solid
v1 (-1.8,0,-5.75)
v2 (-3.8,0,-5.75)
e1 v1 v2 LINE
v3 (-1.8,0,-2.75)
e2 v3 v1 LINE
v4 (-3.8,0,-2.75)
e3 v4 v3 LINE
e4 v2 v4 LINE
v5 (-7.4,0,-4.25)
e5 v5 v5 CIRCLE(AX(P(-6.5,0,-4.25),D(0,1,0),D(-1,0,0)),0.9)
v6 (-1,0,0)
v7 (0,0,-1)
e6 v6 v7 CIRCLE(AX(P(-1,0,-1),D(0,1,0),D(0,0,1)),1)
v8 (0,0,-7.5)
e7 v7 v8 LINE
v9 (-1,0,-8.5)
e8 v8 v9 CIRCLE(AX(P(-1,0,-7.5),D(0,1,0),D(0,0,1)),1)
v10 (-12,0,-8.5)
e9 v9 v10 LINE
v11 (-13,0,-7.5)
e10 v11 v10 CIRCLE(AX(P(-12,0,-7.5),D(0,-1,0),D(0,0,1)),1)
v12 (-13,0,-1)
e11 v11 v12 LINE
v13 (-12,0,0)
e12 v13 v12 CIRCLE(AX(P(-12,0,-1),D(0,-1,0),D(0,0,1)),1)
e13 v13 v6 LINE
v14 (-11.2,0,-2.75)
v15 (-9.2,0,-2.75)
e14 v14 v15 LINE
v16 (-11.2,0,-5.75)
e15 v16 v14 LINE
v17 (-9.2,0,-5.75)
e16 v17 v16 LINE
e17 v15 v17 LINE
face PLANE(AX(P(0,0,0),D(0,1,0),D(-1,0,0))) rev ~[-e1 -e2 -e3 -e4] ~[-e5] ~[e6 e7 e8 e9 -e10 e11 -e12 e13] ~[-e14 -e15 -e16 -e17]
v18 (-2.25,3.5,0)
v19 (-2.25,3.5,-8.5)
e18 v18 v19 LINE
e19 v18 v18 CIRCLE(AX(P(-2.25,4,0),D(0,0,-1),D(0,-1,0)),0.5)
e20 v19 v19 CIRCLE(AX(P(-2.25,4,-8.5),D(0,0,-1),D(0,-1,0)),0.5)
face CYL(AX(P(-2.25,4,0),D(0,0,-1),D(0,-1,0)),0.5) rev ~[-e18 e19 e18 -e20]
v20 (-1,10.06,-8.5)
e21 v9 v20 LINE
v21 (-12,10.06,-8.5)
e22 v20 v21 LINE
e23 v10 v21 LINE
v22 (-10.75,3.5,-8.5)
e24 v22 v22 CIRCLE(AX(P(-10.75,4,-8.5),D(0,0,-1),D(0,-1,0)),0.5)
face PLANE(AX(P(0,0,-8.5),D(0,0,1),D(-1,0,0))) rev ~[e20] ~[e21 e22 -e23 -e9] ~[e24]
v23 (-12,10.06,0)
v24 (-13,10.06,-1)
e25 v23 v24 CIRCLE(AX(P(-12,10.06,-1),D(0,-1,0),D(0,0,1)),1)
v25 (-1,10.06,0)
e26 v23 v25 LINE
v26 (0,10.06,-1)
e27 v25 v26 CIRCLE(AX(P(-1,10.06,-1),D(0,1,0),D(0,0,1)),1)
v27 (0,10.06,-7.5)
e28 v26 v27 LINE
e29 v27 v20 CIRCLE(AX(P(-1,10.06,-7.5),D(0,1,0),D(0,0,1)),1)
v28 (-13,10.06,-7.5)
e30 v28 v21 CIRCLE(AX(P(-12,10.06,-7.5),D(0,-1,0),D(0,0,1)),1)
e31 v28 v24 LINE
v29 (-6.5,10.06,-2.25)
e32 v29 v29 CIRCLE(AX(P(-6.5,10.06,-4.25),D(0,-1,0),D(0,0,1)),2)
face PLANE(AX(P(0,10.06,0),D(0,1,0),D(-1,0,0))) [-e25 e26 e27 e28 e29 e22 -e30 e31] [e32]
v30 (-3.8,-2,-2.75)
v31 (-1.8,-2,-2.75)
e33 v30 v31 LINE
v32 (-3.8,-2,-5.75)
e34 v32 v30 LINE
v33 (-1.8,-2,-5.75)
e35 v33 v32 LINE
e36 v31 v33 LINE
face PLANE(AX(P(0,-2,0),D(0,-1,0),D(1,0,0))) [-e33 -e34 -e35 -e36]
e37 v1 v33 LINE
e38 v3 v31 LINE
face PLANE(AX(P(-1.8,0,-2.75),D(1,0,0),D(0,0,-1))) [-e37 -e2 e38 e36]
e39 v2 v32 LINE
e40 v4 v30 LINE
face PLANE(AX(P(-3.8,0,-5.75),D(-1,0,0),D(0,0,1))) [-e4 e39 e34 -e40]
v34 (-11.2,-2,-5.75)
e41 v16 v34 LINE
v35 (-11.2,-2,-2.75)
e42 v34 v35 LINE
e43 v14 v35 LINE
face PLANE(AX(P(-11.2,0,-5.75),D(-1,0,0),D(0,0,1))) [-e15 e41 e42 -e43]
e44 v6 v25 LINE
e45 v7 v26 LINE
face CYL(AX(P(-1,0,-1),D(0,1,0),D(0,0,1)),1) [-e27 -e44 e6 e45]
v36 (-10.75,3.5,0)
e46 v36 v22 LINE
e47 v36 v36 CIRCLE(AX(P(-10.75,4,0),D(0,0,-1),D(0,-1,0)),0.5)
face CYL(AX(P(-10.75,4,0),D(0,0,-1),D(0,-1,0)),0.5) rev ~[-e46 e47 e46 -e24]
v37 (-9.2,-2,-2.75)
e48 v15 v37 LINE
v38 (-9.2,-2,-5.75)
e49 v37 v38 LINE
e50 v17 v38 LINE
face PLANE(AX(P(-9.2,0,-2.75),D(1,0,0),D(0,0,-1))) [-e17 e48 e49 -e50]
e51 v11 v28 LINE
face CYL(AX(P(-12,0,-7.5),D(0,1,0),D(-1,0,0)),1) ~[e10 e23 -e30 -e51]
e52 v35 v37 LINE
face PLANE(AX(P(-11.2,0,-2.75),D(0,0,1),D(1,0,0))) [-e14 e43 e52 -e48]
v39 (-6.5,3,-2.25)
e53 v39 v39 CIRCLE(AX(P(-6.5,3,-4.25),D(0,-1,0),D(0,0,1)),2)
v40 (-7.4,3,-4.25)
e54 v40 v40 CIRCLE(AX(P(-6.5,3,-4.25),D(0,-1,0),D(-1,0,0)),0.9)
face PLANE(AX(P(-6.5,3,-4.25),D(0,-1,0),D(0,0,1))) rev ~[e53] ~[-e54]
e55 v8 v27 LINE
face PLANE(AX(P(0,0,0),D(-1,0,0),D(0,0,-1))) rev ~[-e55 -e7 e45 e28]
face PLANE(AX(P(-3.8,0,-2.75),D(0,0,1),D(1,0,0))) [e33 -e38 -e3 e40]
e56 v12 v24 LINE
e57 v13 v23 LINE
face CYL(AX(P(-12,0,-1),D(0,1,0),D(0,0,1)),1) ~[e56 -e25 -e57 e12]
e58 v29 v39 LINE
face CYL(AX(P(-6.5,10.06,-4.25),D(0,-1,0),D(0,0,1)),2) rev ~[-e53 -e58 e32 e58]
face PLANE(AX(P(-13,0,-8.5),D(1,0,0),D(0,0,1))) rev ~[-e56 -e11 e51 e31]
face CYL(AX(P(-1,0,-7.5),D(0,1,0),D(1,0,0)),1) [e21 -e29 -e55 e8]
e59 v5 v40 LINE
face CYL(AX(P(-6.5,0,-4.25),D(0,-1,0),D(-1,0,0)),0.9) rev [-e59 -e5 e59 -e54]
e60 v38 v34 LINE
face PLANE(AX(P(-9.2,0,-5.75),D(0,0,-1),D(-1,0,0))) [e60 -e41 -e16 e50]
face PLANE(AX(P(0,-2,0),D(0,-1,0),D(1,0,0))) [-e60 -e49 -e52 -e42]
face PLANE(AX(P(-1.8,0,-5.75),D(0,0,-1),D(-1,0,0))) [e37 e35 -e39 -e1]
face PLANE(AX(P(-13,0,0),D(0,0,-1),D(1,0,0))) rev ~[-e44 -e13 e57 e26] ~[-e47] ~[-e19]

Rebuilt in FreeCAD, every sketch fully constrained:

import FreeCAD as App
import Part
import Sketcher


def edges_at(feature, points):
    """Names of the edges that pass closest to the given points."""
    edges = feature.Shape.Edges
    near = lambda p: min(range(len(edges)), key=lambda i: edges[i].distToShape(Part.Vertex(*p))[0])
    return sorted({f"Edge{near(p) + 1}" for p in points})


def add_polygon(sketch, points):
    """Adds a closed chain of lines whose ends are joined by coincident constraints."""
    first, n = sketch.GeometryCount, len(points)
    for a, b in zip(points, points[1:] + points[:1]):
        sketch.addGeometry(Part.LineSegment(App.Vector(*a, 0), App.Vector(*b, 0)), False)
    for i in range(n):
        sketch.addConstraint(Sketcher.Constraint("Coincident", first + i, 2, first + (i + 1) % n, 1))

doc = App.newDocument("Part")
body = doc.addObject("PartDesign::Body", "Body")

sketch1 = body.newObject("Sketcher::SketchObject", "Sketch")
sketch1.AttachmentSupport = (doc.getObject("XZ_Plane"), [""])
sketch1.MapMode = "FlatFace"
add_polygon(sketch1, [(-13, 0), (0, 0), (0, -8.5), (-13, -8.5)])
sketch1.addGeometry(Part.Circle(App.Vector(-6.5, -4.25, 0), App.Vector(0, 0, 1), 0.9), False)
sketch1.addConstraint(Sketcher.Constraint("Horizontal", 0))
sketch1.addConstraint(Sketcher.Constraint("Vertical", 1))
sketch1.addConstraint(Sketcher.Constraint("Horizontal", 2))
sketch1.addConstraint(Sketcher.Constraint("Vertical", 3))
sketch1.addConstraint(Sketcher.Constraint("Coincident", 0, 2, -1, 1))
sketch1.addConstraint(Sketcher.Constraint("Diameter", 4, 1.8))
sketch1.addConstraint(Sketcher.Constraint("DistanceX", 0, 1, 0, 2, 13.0))
sketch1.addConstraint(Sketcher.Constraint("DistanceY", 1, 2, 1, 1, 8.5))
sketch1.addConstraint(Sketcher.Constraint("DistanceY", 4, 3, -1, 1, 4.25))
sketch1.addConstraint(Sketcher.Constraint("DistanceX", 4, 3, -1, 1, 6.5))
pad1 = body.newObject("PartDesign::Pad", "Pad")
pad1.Profile = sketch1
pad1.Length = 10.06
pad1.Reversed = True

sketch2 = body.newObject("Sketcher::SketchObject", "Sketch001")
sketch2.AttachmentSupport = (doc.getObject("XZ_Plane"), [""])
sketch2.MapMode = "FlatFace"
sketch2.AttachmentOffset = App.Placement(App.Vector(0, 0, -10.06), App.Rotation())
sketch2.addGeometry(Part.Circle(App.Vector(-6.5, -4.25, 0), App.Vector(0, 0, 1), 2), False)
sketch2.addConstraint(Sketcher.Constraint("Diameter", 0, 4.0))
sketch2.addConstraint(Sketcher.Constraint("DistanceX", 0, 3, -1, 1, 6.5))
sketch2.addConstraint(Sketcher.Constraint("DistanceY", 0, 3, -1, 1, 4.25))
doc.recompute()
hole = body.newObject("PartDesign::Hole", "Hole")
hole.Profile = sketch2
hole.ThreadType = "None"
hole.Diameter = 4
hole.DepthType = "Dimension"
hole.Depth = 7.06
hole.DrillPoint = "Flat"
hole.Reversed = True
doc.recompute()

fillet = body.newObject("PartDesign::Fillet", "Fillet")
fillet.Base = (hole, edges_at(hole, [
    (0, 5.03, 0),
    (0, 5.03, -8.5),
    (-13, 5.03, 0),
    (-13, 5.03, -8.5),
]))
fillet.Radius = 1

sketch3 = body.newObject("Sketcher::SketchObject", "Sketch002")
sketch3.AttachmentSupport = (doc.getObject("XZ_Plane"), [""])
sketch3.MapMode = "FlatFace"
add_polygon(sketch3, [(-3.8, -5.75), (-1.8, -5.75), (-1.8, -2.75), (-3.8, -2.75)])
add_polygon(sketch3, [(-11.2, -5.75), (-9.2, -5.75), (-9.2, -2.75), (-11.2, -2.75)])
sketch3.addConstraint(Sketcher.Constraint("Horizontal", 0))
sketch3.addConstraint(Sketcher.Constraint("Vertical", 1))
sketch3.addConstraint(Sketcher.Constraint("Horizontal", 2))
sketch3.addConstraint(Sketcher.Constraint("Vertical", 3))
sketch3.addConstraint(Sketcher.Constraint("Horizontal", 4))
sketch3.addConstraint(Sketcher.Constraint("Vertical", 5))
sketch3.addConstraint(Sketcher.Constraint("Horizontal", 6))
sketch3.addConstraint(Sketcher.Constraint("Vertical", 7))
sketch3.addConstraint(Sketcher.Constraint("Horizontal", 3, 2, 4, 2))
sketch3.addConstraint(Sketcher.Constraint("Horizontal", 2, 2, 5, 2))
sketch3.addConstraint(Sketcher.Constraint("Equal", 2, 4))
sketch3.addConstraint(Sketcher.Constraint("DistanceX", 0, 1, 0, 2, 2.0))
sketch3.addConstraint(Sketcher.Constraint("DistanceY", 1, 1, 1, 2, 3.0))
sketch3.addConstraint(Sketcher.Constraint("DistanceX", 0, 2, -1, 1, 1.8))
sketch3.addConstraint(Sketcher.Constraint("DistanceY", 1, 2, -1, 1, 2.75))
sketch3.addConstraint(Sketcher.Constraint("DistanceX", 4, 2, -1, 1, 9.2))
pad2 = body.newObject("PartDesign::Pad", "Pad001")
pad2.Profile = sketch3
pad2.Length = 2

sketch4 = body.newObject("Sketcher::SketchObject", "Sketch003")
sketch4.AttachmentSupport = (doc.getObject("XY_Plane"), [""])
sketch4.MapMode = "FlatFace"
sketch4.addGeometry(Part.Circle(App.Vector(-10.75, 4, 0), App.Vector(0, 0, 1), 0.5), False)
sketch4.addGeometry(Part.Circle(App.Vector(-2.25, 4, 0), App.Vector(0, 0, 1), 0.5), False)
sketch4.addConstraint(Sketcher.Constraint("Equal", 0, 1))
sketch4.addConstraint(Sketcher.Constraint("Horizontal", 0, 3, 1, 3))
sketch4.addConstraint(Sketcher.Constraint("Diameter", 0, 1.0))
sketch4.addConstraint(Sketcher.Constraint("DistanceY", -1, 1, 0, 3, 4.0))
sketch4.addConstraint(Sketcher.Constraint("DistanceX", 0, 3, 1, 3, 8.5))
sketch4.addConstraint(Sketcher.Constraint("DistanceX", 0, 3, -1, 1, 10.75))
doc.recompute()
hole2 = body.newObject("PartDesign::Hole", "Hole001")
hole2.Profile = sketch4
hole2.ThreadType = "None"
hole2.Diameter = 1
hole2.DepthType = "ThroughAll"

doc.recompute()
